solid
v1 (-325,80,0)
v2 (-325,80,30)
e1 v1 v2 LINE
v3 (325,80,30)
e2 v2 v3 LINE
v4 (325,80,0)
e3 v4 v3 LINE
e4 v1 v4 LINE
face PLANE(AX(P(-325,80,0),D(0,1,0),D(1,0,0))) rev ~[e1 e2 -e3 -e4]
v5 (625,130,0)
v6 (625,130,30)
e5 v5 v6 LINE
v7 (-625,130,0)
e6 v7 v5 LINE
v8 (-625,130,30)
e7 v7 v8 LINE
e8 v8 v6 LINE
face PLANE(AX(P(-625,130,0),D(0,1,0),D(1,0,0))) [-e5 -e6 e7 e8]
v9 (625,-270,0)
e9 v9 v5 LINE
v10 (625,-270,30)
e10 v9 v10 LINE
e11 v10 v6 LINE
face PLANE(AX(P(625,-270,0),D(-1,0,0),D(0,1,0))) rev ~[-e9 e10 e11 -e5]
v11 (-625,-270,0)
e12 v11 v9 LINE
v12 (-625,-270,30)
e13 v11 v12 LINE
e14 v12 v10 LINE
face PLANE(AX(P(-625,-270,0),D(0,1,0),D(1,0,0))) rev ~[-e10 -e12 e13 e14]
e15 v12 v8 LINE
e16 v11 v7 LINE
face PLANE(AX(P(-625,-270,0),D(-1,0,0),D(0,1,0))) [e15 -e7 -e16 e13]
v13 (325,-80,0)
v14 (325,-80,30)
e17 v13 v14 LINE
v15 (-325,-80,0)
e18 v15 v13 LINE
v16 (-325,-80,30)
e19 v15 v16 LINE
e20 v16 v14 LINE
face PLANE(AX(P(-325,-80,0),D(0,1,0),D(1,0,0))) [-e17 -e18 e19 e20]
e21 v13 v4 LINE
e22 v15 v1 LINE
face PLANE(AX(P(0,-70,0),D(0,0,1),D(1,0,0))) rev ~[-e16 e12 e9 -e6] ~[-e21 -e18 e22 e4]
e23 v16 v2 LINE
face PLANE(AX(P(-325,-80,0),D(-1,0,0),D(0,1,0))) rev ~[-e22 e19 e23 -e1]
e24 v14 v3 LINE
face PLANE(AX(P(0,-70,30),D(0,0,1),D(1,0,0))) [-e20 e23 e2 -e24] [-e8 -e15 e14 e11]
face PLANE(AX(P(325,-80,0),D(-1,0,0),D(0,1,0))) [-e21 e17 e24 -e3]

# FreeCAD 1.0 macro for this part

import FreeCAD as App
import Part
import Sketcher


def add_polygon(sketch, points):
    """Adds a closed chain of lines whose ends are joined by coincident constraints."""
    first, n = sketch.GeometryCount, len(points)
    for a, b in zip(points, points[1:] + points[:1]):
        sketch.addGeometry(Part.LineSegment(App.Vector(*a, 0), App.Vector(*b, 0)), False)
    for i in range(n):
        sketch.addConstraint(Sketcher.Constraint("Coincident", first + i, 2, first + (i + 1) % n, 1))

doc = App.newDocument("Part")
body = doc.addObject("PartDesign::Body", "Body")

# Sketch on XY plane
sketch1 = doc.addObject("Sketcher::SketchObject", "Sketch")
body.addObject(sketch1)
sketch1.AttachmentSupport = (doc.XY_Plane, [""])
sketch1.MapMode = "FlatFace"
add_polygon(sketch1, [(-625, 130), (-625, -270), (625, -270), (625, 130)])  # lines 0-3
add_polygon(sketch1, [(325, -80), (-325, -80), (-325, 80), (325, 80)])  # lines 4-7
sketch1.addConstraint(Sketcher.Constraint("Vertical", 0))
sketch1.addConstraint(Sketcher.Constraint("Horizontal", 1))
sketch1.addConstraint(Sketcher.Constraint("Vertical", 2))
sketch1.addConstraint(Sketcher.Constraint("Horizontal", 3))
sketch1.addConstraint(Sketcher.Constraint("Horizontal", 4))
sketch1.addConstraint(Sketcher.Constraint("Vertical", 5))
sketch1.addConstraint(Sketcher.Constraint("Horizontal", 6))
sketch1.addConstraint(Sketcher.Constraint("Vertical", 7))
sketch1.addConstraint(Sketcher.Constraint("Symmetric", 4, 2, 6, 2, -1, 1))
sketch1.addConstraint(Sketcher.Constraint("DistanceX", 1, 1, 1, 2, 1250.0))
sketch1.addConstraint(Sketcher.Constraint("DistanceX", 4, 2, 4, 1, 650.0))
sketch1.addConstraint(Sketcher.Constraint("DistanceY", 0, 2, 0, 1, 400.0))
sketch1.addConstraint(Sketcher.Constraint("DistanceY", 5, 1, 5, 2, 160.0))
sketch1.addConstraint(Sketcher.Constraint("DistanceX", 0, 2, -1, 1, 625.0))
sketch1.addConstraint(Sketcher.Constraint("DistanceY", 0, 2, -1, 1, 270.0))
pad1 = doc.addObject("PartDesign::Pad", "Pad")
body.addObject(pad1)
pad1.Profile = sketch1
pad1.Length = 30

doc.recompute()
